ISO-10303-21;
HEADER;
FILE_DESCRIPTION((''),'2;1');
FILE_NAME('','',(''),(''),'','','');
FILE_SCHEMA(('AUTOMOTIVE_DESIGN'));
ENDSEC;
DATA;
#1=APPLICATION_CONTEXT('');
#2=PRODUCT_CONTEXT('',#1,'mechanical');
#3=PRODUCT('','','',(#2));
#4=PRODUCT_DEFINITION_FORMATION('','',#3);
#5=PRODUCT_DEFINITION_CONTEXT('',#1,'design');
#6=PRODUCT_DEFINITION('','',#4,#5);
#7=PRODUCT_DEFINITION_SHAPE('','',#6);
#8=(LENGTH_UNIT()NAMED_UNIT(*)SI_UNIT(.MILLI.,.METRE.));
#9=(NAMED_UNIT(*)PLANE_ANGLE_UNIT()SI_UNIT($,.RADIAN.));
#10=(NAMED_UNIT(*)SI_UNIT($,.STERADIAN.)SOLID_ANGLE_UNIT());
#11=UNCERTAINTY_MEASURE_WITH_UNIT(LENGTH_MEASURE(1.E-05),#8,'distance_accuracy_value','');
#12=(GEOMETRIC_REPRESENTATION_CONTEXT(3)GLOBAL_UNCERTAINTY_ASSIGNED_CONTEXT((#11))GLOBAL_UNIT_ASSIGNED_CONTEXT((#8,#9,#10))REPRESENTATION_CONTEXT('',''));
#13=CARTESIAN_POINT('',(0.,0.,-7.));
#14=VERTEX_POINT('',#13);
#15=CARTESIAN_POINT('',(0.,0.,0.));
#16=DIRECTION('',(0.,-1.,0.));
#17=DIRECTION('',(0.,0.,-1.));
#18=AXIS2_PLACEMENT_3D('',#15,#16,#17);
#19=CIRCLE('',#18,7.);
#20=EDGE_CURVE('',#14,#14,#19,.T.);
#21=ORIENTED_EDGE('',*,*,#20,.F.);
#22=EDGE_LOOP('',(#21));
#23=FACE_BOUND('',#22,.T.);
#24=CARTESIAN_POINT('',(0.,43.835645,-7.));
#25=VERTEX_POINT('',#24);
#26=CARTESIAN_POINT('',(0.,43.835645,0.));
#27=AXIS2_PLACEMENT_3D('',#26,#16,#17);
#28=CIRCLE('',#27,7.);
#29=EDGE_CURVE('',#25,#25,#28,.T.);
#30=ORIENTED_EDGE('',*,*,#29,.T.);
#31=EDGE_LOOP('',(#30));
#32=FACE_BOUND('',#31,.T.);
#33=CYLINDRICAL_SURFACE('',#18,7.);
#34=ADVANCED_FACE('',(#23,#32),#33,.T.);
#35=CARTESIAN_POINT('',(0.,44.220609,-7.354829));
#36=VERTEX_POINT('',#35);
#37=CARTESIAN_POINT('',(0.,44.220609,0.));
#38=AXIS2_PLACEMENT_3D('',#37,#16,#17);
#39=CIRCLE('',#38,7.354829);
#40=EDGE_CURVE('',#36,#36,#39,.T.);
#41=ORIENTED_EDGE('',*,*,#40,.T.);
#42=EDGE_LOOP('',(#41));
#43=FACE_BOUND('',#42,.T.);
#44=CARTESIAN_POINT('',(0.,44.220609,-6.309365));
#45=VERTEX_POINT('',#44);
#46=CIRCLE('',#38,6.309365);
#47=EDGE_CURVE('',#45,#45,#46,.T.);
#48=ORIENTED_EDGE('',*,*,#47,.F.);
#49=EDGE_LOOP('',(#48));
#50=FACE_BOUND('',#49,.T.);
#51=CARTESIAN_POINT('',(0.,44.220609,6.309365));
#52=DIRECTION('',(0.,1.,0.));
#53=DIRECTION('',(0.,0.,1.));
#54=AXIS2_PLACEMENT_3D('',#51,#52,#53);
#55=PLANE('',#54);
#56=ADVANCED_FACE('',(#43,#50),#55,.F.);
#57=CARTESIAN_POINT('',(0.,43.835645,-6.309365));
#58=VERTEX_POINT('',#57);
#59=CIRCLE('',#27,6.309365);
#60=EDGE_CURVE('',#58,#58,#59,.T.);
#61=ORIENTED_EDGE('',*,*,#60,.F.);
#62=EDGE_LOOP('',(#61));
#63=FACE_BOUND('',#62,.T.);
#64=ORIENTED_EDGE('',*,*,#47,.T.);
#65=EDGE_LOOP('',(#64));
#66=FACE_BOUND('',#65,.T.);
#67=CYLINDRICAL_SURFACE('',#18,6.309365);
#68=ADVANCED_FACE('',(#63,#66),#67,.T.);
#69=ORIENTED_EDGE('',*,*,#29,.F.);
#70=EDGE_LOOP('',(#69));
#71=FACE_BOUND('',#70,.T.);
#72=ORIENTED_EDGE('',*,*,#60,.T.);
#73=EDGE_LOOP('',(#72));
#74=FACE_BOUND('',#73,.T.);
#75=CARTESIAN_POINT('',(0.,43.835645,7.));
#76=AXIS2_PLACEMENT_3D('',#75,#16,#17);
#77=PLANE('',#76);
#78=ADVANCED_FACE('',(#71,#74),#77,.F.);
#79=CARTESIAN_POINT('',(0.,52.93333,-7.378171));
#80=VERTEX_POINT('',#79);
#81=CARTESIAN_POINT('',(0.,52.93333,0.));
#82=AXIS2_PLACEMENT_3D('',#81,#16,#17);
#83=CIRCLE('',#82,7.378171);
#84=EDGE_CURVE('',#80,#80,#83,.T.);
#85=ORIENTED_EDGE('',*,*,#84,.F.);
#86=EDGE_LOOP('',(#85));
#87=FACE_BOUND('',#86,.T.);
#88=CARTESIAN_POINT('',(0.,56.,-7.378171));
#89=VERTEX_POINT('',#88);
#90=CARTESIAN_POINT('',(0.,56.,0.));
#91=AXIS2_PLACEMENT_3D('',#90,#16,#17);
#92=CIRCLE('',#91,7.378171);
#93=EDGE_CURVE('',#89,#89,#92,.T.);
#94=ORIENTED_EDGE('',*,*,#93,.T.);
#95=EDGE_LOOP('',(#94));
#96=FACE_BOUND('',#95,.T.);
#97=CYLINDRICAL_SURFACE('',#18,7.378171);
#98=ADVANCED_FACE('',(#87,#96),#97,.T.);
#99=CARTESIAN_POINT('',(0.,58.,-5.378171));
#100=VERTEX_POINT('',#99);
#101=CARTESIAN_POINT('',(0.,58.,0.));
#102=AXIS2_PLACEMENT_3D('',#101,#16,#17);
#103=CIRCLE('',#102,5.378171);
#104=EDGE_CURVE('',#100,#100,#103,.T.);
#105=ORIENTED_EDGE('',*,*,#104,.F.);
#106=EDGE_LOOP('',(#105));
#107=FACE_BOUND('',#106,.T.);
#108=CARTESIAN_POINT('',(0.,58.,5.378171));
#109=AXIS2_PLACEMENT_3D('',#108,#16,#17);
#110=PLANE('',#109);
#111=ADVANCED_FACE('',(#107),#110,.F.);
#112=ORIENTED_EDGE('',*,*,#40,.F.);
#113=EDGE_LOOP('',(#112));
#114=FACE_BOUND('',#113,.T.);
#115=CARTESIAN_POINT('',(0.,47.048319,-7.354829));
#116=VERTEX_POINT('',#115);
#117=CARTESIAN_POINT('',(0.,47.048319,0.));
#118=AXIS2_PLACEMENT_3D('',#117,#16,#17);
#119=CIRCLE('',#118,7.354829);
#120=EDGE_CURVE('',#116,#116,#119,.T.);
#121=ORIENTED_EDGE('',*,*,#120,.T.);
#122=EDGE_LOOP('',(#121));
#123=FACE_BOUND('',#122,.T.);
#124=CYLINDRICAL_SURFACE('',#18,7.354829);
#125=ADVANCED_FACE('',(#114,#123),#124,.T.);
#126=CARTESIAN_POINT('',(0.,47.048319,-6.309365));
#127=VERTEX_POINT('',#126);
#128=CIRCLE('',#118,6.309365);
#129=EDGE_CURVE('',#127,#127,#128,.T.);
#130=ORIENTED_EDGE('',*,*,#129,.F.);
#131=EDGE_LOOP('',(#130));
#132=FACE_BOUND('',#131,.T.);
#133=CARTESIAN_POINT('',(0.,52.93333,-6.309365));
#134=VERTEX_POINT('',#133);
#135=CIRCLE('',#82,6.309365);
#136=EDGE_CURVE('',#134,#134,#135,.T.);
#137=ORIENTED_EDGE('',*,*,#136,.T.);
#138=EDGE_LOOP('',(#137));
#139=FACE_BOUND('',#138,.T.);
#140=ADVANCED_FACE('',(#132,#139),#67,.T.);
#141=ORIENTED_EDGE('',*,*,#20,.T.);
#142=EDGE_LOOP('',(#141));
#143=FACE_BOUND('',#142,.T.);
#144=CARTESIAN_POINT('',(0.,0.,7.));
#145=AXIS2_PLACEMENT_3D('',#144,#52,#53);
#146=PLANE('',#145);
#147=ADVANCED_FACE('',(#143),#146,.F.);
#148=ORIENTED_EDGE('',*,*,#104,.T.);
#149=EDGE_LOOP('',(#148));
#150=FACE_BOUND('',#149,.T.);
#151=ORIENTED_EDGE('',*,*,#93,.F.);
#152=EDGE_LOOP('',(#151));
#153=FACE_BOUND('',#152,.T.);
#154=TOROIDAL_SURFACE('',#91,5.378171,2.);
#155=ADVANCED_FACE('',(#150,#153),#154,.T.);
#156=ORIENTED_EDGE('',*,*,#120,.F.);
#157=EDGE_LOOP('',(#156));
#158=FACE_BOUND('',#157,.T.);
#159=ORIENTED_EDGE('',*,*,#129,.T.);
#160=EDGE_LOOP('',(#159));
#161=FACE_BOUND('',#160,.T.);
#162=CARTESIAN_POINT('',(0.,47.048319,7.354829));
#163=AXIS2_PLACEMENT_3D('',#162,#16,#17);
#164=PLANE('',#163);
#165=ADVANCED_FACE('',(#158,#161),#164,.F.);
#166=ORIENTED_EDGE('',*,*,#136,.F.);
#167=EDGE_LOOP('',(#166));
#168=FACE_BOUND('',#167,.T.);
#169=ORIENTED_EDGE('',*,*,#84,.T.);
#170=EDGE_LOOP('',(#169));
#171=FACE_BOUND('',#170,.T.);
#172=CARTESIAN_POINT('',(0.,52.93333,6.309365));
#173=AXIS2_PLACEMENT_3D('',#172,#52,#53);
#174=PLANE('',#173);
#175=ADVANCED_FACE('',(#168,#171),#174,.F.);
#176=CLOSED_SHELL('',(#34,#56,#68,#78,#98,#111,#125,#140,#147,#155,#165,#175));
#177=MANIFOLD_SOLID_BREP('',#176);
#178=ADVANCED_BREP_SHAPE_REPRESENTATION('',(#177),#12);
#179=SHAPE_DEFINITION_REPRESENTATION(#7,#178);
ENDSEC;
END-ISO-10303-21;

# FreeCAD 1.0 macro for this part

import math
import FreeCAD as App
import Part
import Sketcher

doc = App.newDocument("Part")
body = doc.addObject("PartDesign::Body", "Body")

sketch1 = body.newObject("Sketcher::SketchObject", "Sketch")
sketch1.AttachmentSupport = (doc.getObject("YZ_Plane"), [""])
sketch1.MapMode = "FlatFace"
sketch1.addGeometry(Part.LineSegment(App.Vector(0, 7, 0), App.Vector(0, 0, 0)), False)
sketch1.addGeometry(Part.LineSegment(App.Vector(0, 0, 0), App.Vector(58, 0, 0)), False)
sketch1.addGeometry(Part.LineSegment(App.Vector(58, 0, 0), App.Vector(58, 5.38, 0)), False)
sketch1.addGeometry(Part.ArcOfCircle(Part.Circle(App.Vector(56, 5.38, 0), App.Vector(0, 0, 1), 2), math.radians(0), math.radians(90)), False)
sketch1.addGeometry(Part.LineSegment(App.Vector(56, 7.38, 0), App.Vector(52.93, 7.38, 0)), False)
sketch1.addGeometry(Part.LineSegment(App.Vector(52.93, 7.38, 0), App.Vector(52.93, 6.31, 0)), False)
sketch1.addGeometry(Part.LineSegment(App.Vector(52.93, 6.31, 0), App.Vector(47.05, 6.31, 0)), False)
sketch1.addGeometry(Part.LineSegment(App.Vector(47.05, 6.31, 0), App.Vector(47.05, 7.35, 0)), False)
sketch1.addGeometry(Part.LineSegment(App.Vector(47.05, 7.35, 0), App.Vector(44.22, 7.35, 0)), False)
sketch1.addGeometry(Part.LineSegment(App.Vector(44.22, 7.35, 0), App.Vector(44.22, 6.31, 0)), False)
sketch1.addGeometry(Part.LineSegment(App.Vector(44.22, 6.31, 0), App.Vector(43.84, 6.31, 0)), False)
sketch1.addGeometry(Part.LineSegment(App.Vector(43.84, 6.31, 0), App.Vector(43.84, 7, 0)), False)
sketch1.addGeometry(Part.LineSegment(App.Vector(43.84, 7, 0), App.Vector(0, 7, 0)), False)
sketch1.addConstraint(Sketcher.Constraint("Coincident", 0, 2, 1, 1))
sketch1.addConstraint(Sketcher.Constraint("Coincident", 1, 2, 2, 1))
sketch1.addConstraint(Sketcher.Constraint("Tangent", 2, 2, 3, 1))
sketch1.addConstraint(Sketcher.Constraint("Tangent", 3, 2, 4, 1))
sketch1.addConstraint(Sketcher.Constraint("Coincident", 4, 2, 5, 1))
sketch1.addConstraint(Sketcher.Constraint("Coincident", 5, 2, 6, 1))
sketch1.addConstraint(Sketcher.Constraint("Coincident", 6, 2, 7, 1))
sketch1.addConstraint(Sketcher.Constraint("Coincident", 7, 2, 8, 1))
sketch1.addConstraint(Sketcher.Constraint("Coincident", 8, 2, 9, 1))
sketch1.addConstraint(Sketcher.Constraint("Coincident", 9, 2, 10, 1))
sketch1.addConstraint(Sketcher.Constraint("Coincident", 10, 2, 11, 1))
sketch1.addConstraint(Sketcher.Constraint("Coincident", 11, 2, 12, 1))
sketch1.addConstraint(Sketcher.Constraint("Coincident", 12, 2, 0, 1))
sketch1.addConstraint(Sketcher.Constraint("Vertical", 0))
sketch1.addConstraint(Sketcher.Constraint("Horizontal", 1))
sketch1.addConstraint(Sketcher.Constraint("Vertical", 2))
sketch1.addConstraint(Sketcher.Constraint("Horizontal", 4))
sketch1.addConstraint(Sketcher.Constraint("Vertical", 5))
sketch1.addConstraint(Sketcher.Constraint("Horizontal", 6))
sketch1.addConstraint(Sketcher.Constraint("Vertical", 7))
sketch1.addConstraint(Sketcher.Constraint("Horizontal", 8))
sketch1.addConstraint(Sketcher.Constraint("Vertical", 9))
sketch1.addConstraint(Sketcher.Constraint("Horizontal", 10))
sketch1.addConstraint(Sketcher.Constraint("Vertical", 11))
sketch1.addConstraint(Sketcher.Constraint("Horizontal", 12))
sketch1.addConstraint(Sketcher.Constraint("Coincident", 0, 2, -1, 1))
sketch1.addConstraint(Sketcher.Constraint("Horizontal", 6, 2, 9, 2))
sketch1.addConstraint(Sketcher.Constraint("Radius", 3, 2.0))
sketch1.addConstraint(Sketcher.Constraint("DistanceX", 1, 1, 1, 2, 58.0))
sketch1.addConstraint(Sketcher.Constraint("DistanceY", 0, 2, 0, 1, 7.0))
sketch1.addConstraint(Sketcher.Constraint("DistanceX", 4, 2, 4, 1, 3.06667))
sketch1.addConstraint(Sketcher.Constraint("DistanceX", 6, 2, 6, 1, 5.885012))
sketch1.addConstraint(Sketcher.Constraint("DistanceX", 8, 2, 8, 1, 2.82771))
sketch1.addConstraint(Sketcher.Constraint("DistanceY", 2, 1, 2, 2, 5.378171))
sketch1.addConstraint(Sketcher.Constraint("DistanceX", 10, 2, 10, 1, 0.384964))
sketch1.addConstraint(Sketcher.Constraint("DistanceY", 5, 2, 5, 1, 1.068806))
sketch1.addConstraint(Sketcher.Constraint("DistanceY", 7, 1, 7, 2, 1.045465))
revolution = body.newObject("PartDesign::Revolution", "Revolution")
revolution.Profile = sketch1
revolution.ReferenceAxis = (sketch1, ["H_Axis"])
revolution.Angle = 360

doc.recompute()
